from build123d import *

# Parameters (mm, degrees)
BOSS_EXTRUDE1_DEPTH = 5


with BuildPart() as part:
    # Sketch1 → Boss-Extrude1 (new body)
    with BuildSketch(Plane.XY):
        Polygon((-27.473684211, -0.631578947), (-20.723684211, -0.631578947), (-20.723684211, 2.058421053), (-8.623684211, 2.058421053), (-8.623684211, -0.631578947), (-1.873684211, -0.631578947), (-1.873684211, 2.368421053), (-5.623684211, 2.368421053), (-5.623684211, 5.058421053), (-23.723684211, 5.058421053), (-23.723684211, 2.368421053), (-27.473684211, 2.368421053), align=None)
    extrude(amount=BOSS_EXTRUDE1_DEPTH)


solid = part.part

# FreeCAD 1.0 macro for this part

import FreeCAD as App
import Part
import Sketcher

V = App.Vector
Q = App.Units.Quantity

doc = App.newDocument("Part")
body = doc.addObject("PartDesign::Body", "Body")

sketch1 = body.newObject("Sketcher::SketchObject", "Sketch")
sketch1.AttachmentSupport = (doc.getObject("XY_Plane"), [""])
sketch1.MapMode = "FlatFace"
sketch1.addGeometry([
    Part.LineSegment(V(-27.5, -0.6, 0), V(-20.7, -0.6, 0)),
    Part.LineSegment(V(-20.7, -0.6, 0), V(-20.7, 2.1, 0)),
    Part.LineSegment(V(-20.7, 2.1, 0), V(-8.6, 2.1, 0)),
    Part.LineSegment(V(-8.6, 2.1, 0), V(-8.6, -0.6, 0)),
    Part.LineSegment(V(-8.6, -0.6, 0), V(-1.9, -0.6, 0)),
    Part.LineSegment(V(-1.9, -0.6, 0), V(-1.9, 2.4, 0)),
    Part.LineSegment(V(-1.9, 2.4, 0), V(-5.6, 2.4, 0)),
    Part.LineSegment(V(-5.6, 2.4, 0), V(-5.6, 5.1, 0)),
    Part.LineSegment(V(-5.6, 5.1, 0), V(-23.7, 5.1, 0)),
    Part.LineSegment(V(-23.7, 5.1, 0), V(-23.7, 2.4, 0)),
    Part.LineSegment(V(-23.7, 2.4, 0), V(-27.5, 2.4, 0)),
    Part.LineSegment(V(-27.5, 2.4, 0), V(-27.5, -0.6, 0)),
], False)
sketch1.addConstraint([
    Sketcher.Constraint("Coincident", 0, 2, 1, 1),
    Sketcher.Constraint("Coincident", 1, 2, 2, 1),
    Sketcher.Constraint("Coincident", 2, 2, 3, 1),
    Sketcher.Constraint("Coincident", 3, 2, 4, 1),
    Sketcher.Constraint("Coincident", 4, 2, 5, 1),
    Sketcher.Constraint("Coincident", 5, 2, 6, 1),
    Sketcher.Constraint("Coincident", 6, 2, 7, 1),
    Sketcher.Constraint("Coincident", 7, 2, 8, 1),
    Sketcher.Constraint("Coincident", 8, 2, 9, 1),
    Sketcher.Constraint("Coincident", 9, 2, 10, 1),
    Sketcher.Constraint("Coincident", 10, 2, 11, 1),
    Sketcher.Constraint("Coincident", 11, 2, 0, 1),
    Sketcher.Constraint("Horizontal", 0),
    Sketcher.Constraint("Vertical", 1),
    Sketcher.Constraint("Horizontal", 2),
    Sketcher.Constraint("Vertical", 3),
    Sketcher.Constraint("Horizontal", 4),
    Sketcher.Constraint("Vertical", 5),
    Sketcher.Constraint("Horizontal", 6),
    Sketcher.Constraint("Vertical", 7),
    Sketcher.Constraint("Horizontal", 8),
    Sketcher.Constraint("Vertical", 9),
    Sketcher.Constraint("Horizontal", 10),
    Sketcher.Constraint("Vertical", 11),
    Sketcher.Constraint("Horizontal", 0, 2, 3, 2),
    Sketcher.Constraint("Horizontal", 6, 2, 9, 2),
    Sketcher.Constraint("Equal", 0, 4),
    Sketcher.Constraint("Equal", 6, 10),
    Sketcher.Constraint("Equal", 3, 7),
    Sketcher.Constraint("DistanceY", 5, 1, 5, 2, Q("3 mm")),
    Sketcher.Constraint("DistanceX", 2, 1, 2, 2, Q("12.1 mm")),
    Sketcher.Constraint("DistanceX", 8, 2, 8, 1, Q("18.1 mm")),
    Sketcher.Constraint("DistanceX", 0, 1, 0, 2, Q("6.75 mm")),
    Sketcher.Constraint("DistanceY", 1, 1, 1, 2, Q("2.69 mm")),
    Sketcher.Constraint("DistanceY", 0, 2, -1, 1, Q("0.631579 mm")),
    Sketcher.Constraint("DistanceX", 0, 2, -1, 1, Q("20.723684 mm")),
])
pad1 = body.newObject("PartDesign::Pad", "Pad")
pad1.Profile = sketch1
pad1.Length = 5

doc.recompute()
